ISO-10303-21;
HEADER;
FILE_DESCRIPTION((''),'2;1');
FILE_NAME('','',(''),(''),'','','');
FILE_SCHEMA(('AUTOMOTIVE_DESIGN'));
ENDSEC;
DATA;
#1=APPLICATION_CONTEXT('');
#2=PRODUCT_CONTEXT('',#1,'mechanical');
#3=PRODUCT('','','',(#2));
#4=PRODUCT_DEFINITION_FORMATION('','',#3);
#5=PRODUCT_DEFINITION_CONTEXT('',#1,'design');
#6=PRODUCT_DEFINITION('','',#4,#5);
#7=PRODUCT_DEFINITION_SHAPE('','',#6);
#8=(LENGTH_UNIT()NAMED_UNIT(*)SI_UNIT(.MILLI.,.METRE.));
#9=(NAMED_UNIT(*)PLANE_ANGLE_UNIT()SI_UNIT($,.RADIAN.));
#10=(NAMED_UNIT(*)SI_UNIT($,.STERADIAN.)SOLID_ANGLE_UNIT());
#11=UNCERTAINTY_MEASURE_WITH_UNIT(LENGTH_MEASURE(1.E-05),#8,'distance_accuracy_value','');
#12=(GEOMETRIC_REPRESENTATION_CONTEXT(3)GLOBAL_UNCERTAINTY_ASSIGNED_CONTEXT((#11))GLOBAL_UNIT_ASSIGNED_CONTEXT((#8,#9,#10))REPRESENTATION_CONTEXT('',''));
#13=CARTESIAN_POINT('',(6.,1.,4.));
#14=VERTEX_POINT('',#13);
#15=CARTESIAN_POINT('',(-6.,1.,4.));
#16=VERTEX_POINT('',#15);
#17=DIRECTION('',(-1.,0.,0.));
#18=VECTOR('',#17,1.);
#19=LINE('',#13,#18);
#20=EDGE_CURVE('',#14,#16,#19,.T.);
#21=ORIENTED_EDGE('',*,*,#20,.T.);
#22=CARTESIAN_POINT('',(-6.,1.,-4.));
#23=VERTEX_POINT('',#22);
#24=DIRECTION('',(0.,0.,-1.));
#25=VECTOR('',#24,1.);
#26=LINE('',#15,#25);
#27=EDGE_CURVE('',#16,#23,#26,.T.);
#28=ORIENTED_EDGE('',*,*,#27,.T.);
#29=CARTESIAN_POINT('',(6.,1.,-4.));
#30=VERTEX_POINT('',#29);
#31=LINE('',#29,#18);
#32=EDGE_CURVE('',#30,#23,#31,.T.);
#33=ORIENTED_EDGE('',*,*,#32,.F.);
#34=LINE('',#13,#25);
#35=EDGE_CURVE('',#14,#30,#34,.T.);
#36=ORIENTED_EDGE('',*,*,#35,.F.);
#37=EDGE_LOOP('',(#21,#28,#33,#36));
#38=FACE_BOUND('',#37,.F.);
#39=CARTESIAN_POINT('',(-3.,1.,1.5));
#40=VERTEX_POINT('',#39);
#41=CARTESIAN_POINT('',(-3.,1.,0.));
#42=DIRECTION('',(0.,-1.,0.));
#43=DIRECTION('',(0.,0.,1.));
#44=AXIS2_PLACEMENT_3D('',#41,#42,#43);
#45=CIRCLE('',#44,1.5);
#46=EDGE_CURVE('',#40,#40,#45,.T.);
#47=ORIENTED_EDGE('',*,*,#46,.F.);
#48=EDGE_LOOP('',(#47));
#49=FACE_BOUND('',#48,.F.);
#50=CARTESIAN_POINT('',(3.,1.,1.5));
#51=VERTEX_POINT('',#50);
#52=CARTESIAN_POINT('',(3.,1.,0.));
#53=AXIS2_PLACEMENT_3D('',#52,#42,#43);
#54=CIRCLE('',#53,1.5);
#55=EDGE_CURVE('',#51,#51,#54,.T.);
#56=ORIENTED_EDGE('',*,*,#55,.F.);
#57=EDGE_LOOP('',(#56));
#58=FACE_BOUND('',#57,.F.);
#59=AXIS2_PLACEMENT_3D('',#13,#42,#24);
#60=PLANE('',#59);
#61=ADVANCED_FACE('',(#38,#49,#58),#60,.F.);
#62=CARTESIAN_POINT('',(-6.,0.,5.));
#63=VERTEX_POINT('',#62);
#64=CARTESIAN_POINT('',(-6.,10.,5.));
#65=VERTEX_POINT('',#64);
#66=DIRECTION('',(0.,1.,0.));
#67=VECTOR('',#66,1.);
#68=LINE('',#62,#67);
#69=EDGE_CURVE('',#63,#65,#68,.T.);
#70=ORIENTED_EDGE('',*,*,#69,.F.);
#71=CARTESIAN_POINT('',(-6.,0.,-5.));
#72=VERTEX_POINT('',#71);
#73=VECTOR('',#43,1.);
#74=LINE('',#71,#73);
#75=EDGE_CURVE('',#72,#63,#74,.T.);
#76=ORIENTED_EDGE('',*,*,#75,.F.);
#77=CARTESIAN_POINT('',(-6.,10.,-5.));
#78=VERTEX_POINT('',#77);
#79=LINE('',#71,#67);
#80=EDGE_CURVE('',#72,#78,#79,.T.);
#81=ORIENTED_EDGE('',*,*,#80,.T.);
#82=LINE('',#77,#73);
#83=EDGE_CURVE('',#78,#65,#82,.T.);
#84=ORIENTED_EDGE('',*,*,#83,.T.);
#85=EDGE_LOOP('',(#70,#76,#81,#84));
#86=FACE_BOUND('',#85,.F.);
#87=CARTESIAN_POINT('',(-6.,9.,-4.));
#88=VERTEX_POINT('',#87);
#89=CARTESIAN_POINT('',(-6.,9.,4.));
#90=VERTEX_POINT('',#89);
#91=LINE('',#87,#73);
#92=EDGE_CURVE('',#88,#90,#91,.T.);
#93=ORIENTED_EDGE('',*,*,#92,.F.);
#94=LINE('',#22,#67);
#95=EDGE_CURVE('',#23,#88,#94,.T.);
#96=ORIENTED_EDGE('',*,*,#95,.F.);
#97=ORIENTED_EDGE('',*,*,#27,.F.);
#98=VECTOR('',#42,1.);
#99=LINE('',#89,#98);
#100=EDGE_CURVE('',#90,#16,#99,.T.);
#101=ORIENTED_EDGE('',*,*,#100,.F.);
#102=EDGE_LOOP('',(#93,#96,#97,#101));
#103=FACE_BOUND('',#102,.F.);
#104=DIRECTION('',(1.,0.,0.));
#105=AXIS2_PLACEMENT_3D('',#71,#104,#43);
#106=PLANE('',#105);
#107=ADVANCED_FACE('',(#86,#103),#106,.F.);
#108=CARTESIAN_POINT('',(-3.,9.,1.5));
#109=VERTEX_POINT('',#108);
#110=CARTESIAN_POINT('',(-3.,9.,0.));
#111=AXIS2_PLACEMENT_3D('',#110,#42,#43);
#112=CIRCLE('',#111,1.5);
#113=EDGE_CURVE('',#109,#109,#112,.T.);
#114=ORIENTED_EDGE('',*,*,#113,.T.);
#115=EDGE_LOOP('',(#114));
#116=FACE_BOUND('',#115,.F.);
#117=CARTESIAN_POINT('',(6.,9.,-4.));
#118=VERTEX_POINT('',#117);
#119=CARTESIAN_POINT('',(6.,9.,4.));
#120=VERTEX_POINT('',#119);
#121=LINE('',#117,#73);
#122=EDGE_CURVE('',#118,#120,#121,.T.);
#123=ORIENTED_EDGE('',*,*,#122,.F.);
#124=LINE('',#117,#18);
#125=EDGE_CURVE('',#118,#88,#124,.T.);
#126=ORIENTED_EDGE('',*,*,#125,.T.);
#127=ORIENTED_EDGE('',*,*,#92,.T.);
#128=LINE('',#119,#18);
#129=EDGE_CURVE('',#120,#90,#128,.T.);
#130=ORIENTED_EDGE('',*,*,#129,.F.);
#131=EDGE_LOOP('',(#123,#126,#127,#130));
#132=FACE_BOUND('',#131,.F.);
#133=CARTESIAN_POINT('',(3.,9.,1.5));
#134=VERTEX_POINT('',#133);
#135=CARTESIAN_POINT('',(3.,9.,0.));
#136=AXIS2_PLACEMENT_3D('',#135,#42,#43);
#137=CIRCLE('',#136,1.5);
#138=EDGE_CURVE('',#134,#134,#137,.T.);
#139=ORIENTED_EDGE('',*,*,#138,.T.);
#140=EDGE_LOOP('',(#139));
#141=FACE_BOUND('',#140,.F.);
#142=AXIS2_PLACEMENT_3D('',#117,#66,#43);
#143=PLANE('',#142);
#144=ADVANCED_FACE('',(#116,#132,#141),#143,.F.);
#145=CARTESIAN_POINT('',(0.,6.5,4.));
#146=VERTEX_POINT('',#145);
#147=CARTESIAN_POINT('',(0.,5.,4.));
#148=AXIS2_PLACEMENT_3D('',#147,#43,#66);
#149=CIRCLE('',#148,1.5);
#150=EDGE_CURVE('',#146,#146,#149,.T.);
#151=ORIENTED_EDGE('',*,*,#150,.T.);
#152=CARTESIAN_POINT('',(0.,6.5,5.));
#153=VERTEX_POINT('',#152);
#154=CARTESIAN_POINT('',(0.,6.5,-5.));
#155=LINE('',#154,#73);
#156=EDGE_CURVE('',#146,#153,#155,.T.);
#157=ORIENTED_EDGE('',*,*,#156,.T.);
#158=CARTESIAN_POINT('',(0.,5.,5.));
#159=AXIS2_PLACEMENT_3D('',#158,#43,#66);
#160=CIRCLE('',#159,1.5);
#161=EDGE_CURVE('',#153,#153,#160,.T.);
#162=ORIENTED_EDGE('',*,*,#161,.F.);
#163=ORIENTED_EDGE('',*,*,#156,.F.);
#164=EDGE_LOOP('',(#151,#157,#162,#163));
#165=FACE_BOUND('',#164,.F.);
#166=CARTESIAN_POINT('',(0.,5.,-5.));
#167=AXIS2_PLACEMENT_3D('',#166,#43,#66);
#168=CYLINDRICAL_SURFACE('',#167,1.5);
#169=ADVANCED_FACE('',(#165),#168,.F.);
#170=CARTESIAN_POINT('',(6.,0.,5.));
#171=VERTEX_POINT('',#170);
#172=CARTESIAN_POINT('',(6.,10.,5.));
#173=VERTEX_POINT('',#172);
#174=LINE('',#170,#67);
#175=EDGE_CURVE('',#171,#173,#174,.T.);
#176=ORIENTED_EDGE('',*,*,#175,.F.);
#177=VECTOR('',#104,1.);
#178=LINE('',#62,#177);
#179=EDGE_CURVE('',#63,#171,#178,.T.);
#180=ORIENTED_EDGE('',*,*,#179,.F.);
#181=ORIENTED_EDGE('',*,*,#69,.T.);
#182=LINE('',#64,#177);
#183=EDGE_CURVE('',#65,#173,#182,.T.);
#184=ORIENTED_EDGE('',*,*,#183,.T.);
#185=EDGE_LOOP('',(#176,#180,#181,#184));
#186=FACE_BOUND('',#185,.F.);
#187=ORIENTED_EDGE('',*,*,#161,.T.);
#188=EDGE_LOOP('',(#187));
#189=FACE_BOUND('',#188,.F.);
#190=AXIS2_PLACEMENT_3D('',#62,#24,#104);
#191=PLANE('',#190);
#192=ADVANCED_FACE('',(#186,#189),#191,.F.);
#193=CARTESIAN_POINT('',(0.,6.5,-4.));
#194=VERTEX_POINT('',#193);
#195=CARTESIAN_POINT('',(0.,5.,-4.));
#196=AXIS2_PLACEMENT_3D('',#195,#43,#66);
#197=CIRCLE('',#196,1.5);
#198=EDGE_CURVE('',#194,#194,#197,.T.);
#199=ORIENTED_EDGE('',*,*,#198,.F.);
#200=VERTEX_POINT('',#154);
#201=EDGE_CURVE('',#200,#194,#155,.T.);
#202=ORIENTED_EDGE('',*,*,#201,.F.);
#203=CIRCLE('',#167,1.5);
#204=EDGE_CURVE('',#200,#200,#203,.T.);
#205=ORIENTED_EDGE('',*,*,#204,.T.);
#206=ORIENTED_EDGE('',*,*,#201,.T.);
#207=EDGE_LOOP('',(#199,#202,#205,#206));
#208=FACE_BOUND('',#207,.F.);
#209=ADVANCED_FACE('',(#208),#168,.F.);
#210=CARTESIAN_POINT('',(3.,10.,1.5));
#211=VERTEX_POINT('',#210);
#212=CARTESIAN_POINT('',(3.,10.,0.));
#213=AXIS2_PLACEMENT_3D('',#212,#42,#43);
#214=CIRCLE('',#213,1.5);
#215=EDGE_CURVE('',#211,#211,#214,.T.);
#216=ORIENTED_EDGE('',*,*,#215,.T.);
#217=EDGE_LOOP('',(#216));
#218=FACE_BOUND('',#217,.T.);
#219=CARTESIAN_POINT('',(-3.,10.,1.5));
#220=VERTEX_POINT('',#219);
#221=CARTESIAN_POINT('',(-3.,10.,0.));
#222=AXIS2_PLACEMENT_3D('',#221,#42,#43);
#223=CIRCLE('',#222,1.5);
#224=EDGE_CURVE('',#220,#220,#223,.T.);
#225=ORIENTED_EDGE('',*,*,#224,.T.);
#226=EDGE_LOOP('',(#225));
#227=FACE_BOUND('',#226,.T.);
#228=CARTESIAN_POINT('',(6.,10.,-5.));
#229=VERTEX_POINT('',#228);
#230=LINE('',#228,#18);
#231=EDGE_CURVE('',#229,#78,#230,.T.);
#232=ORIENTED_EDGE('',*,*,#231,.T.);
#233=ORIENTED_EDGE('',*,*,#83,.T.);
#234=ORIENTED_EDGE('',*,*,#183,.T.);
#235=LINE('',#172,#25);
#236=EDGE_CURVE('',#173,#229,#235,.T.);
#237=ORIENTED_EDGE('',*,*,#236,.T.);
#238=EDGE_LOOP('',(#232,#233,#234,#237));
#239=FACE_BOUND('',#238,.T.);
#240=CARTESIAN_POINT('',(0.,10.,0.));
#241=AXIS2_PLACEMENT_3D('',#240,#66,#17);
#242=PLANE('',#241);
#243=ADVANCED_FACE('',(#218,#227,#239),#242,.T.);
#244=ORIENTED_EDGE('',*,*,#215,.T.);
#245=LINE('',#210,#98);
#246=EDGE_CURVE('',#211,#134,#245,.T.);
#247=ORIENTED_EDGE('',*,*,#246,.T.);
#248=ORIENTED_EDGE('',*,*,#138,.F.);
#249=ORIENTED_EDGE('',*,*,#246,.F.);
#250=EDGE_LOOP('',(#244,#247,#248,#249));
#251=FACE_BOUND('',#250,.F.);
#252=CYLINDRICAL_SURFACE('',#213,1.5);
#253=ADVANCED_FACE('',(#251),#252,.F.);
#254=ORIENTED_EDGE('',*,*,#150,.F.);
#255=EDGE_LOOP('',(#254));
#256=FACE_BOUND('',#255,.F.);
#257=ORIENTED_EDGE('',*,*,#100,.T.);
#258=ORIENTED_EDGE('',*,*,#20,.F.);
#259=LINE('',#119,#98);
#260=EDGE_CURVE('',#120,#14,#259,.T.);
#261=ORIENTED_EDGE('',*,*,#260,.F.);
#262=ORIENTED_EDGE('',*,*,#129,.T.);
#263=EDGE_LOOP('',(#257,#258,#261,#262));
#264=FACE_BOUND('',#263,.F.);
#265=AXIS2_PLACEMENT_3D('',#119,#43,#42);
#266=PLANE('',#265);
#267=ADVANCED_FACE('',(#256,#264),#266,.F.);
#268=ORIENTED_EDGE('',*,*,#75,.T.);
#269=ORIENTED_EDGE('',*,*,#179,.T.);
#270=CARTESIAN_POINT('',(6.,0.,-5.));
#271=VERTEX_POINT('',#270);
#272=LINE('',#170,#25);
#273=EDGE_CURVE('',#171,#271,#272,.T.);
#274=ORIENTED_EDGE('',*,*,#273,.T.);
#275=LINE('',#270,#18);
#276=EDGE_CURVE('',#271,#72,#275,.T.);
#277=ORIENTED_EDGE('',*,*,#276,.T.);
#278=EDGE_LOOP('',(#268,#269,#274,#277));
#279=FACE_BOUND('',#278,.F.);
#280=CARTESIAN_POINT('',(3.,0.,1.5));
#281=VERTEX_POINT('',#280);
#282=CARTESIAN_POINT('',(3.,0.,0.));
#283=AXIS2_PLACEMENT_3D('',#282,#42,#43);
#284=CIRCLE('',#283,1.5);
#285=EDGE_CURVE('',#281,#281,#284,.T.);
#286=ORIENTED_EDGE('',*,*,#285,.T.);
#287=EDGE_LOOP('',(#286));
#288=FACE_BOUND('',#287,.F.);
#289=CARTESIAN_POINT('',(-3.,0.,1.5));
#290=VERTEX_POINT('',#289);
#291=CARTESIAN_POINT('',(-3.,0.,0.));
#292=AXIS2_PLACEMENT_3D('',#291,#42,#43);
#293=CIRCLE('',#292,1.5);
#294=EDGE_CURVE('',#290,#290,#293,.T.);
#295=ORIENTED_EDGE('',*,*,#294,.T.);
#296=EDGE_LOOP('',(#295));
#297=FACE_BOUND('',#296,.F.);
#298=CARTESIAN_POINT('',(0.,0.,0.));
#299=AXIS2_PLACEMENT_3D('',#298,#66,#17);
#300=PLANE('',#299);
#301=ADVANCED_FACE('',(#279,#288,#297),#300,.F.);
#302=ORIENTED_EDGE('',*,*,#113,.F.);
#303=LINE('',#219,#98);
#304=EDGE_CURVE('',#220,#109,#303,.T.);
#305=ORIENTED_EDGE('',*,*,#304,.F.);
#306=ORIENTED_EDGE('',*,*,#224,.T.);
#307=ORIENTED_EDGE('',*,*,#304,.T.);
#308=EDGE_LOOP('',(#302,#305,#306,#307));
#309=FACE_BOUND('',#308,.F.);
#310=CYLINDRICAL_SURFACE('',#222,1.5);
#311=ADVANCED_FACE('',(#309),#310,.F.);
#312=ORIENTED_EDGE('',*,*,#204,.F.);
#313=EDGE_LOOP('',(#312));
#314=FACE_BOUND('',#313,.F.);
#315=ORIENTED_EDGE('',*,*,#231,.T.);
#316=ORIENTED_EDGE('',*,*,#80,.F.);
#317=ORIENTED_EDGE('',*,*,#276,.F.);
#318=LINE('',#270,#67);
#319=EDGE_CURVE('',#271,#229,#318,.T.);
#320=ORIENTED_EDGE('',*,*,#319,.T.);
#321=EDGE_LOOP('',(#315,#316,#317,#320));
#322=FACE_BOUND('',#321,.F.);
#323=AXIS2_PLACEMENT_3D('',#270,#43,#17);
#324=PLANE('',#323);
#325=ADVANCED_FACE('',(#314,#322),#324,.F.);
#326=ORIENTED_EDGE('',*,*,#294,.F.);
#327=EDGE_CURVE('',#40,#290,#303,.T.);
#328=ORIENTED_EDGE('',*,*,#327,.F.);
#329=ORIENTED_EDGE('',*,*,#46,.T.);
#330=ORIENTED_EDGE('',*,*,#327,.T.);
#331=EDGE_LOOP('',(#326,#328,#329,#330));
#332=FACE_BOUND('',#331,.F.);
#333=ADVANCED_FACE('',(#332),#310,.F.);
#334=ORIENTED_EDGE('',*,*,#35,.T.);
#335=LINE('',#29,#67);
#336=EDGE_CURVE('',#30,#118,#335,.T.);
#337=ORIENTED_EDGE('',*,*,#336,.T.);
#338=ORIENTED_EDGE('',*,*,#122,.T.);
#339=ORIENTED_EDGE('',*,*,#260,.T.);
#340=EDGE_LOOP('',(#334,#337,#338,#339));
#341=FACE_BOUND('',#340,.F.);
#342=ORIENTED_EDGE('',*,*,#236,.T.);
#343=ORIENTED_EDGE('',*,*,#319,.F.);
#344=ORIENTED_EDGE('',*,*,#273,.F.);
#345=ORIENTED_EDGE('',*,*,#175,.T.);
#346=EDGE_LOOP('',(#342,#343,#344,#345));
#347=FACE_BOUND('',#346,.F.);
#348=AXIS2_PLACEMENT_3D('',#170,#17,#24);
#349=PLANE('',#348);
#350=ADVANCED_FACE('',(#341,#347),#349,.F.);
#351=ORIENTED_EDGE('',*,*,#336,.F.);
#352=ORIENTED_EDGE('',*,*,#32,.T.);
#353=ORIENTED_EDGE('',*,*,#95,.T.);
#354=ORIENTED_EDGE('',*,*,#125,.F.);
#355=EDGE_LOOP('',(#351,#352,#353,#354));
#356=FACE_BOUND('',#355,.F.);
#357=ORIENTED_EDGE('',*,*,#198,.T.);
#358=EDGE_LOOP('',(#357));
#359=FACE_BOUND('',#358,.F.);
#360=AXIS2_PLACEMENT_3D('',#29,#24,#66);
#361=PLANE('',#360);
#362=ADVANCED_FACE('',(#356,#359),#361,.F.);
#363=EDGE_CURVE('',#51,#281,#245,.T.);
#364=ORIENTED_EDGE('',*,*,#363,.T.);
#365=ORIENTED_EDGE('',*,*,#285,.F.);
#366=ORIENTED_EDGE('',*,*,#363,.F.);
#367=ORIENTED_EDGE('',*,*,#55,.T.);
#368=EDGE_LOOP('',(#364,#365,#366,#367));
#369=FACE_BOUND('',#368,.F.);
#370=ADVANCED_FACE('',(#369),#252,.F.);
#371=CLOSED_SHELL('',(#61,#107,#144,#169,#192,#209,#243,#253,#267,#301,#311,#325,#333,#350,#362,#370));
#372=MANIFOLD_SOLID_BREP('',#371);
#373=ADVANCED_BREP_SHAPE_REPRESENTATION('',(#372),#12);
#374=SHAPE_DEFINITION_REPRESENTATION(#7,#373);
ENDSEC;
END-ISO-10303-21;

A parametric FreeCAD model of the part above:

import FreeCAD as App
import Part
import Sketcher
from FreeCAD import Vector

doc = App.newDocument("Part")
body = doc.addObject("PartDesign::Body", "Body")

# Sketch on XZ plane
sketch1 = body.newObject("Sketcher::SketchObject", "Sketch")
sketch1.AttachmentSupport = (doc.getObject("XZ_Plane"), [""])
sketch1.MapMode = "FlatFace"
sketch1.addGeometry(Part.LineSegment(Vector(6, 5, 0), Vector(6, -5, 0)), False)
sketch1.addGeometry(Part.LineSegment(Vector(6, -5, 0), Vector(-6, -5, 0)), False)
sketch1.addGeometry(Part.LineSegment(Vector(-6, -5, 0), Vector(-6, 5, 0)), False)
sketch1.addGeometry(Part.LineSegment(Vector(-6, 5, 0), Vector(6, 5, 0)), False)
sketch1.addConstraint(Sketcher.Constraint("Coincident", 0, 2, 1, 1))
sketch1.addConstraint(Sketcher.Constraint("Coincident", 1, 2, 2, 1))
sketch1.addConstraint(Sketcher.Constraint("Coincident", 2, 2, 3, 1))
sketch1.addConstraint(Sketcher.Constraint("Coincident", 3, 2, 0, 1))
sketch1.addConstraint(Sketcher.Constraint("Vertical", 0))
sketch1.addConstraint(Sketcher.Constraint("Horizontal", 1))
sketch1.addConstraint(Sketcher.Constraint("Vertical", 2))
sketch1.addConstraint(Sketcher.Constraint("Horizontal", 3))
sketch1.addConstraint(Sketcher.Constraint("Symmetric", 0, 2, 2, 2, -1, 1))
sketch1.addConstraint(Sketcher.Constraint("DistanceX", 1, 2, 1, 1, 12.0))
sketch1.addConstraint(Sketcher.Constraint("DistanceY", 0, 2, 0, 1, 10.0))
pad1 = body.newObject("PartDesign::Pad", "Pad")
pad1.Profile = sketch1
pad1.Length = 10
pad1.Reversed = True

# Sketch on XZ plane
sketch2 = body.newObject("Sketcher::SketchObject", "Sketch001")
sketch2.AttachmentSupport = (doc.getObject("XZ_Plane"), [""])
sketch2.MapMode = "FlatFace"
sketch2.AttachmentOffset = App.Placement(Vector(0, 0, -10), App.Rotation())
sketch2.addGeometry(Part.Circle(Vector(3, 0, 0), Vector(0, 0, 1), 1.5), False)
sketch2.addGeometry(Part.Circle(Vector(-3, 0, 0), Vector(0, 0, 1), 1.5), False)
sketch2.addConstraint(Sketcher.Constraint("Equal", 0, 1))
sketch2.addConstraint(Sketcher.Constraint("Symmetric", 0, 3, 1, 3, -1, 1))
sketch2.addConstraint(Sketcher.Constraint("PointOnObject", 0, 3, -1))
sketch2.addConstraint(Sketcher.Constraint("Diameter", 0, 3.0))
sketch2.addConstraint(Sketcher.Constraint("DistanceX", -1, 1, 0, 3, 3.0))
doc.recompute()
hole = body.newObject("PartDesign::Hole", "Hole")
hole.Profile = sketch2
hole.ThreadType = "None"
hole.Diameter = 3
hole.DepthType = "ThroughAll"
hole.Reversed = True

# Sketch on XY plane
sketch3 = body.newObject("Sketcher::SketchObject", "Sketch002")
sketch3.AttachmentSupport = (doc.getObject("XY_Plane"), [""])
sketch3.MapMode = "FlatFace"
sketch3.AttachmentOffset = App.Placement(Vector(0, 0, -5), App.Rotation())
sketch3.addGeometry(Part.Circle(Vector(0, 5, 0), Vector(0, 0, 1), 1.5), False)
sketch3.addConstraint(Sketcher.Constraint("PointOnObject", 0, 3, -2))
sketch3.addConstraint(Sketcher.Constraint("Diameter", 0, 3.0))
sketch3.addConstraint(Sketcher.Constraint("DistanceY", -1, 1, 0, 3, 5.0))
doc.recompute()
hole2 = body.newObject("PartDesign::Hole", "Hole001")
hole2.Profile = sketch3
hole2.ThreadType = "None"
hole2.Diameter = 3
hole2.DepthType = "ThroughAll"
hole2.Reversed = True

# Sketch on YZ plane
sketch4 = body.newObject("Sketcher::SketchObject", "Sketch003")
sketch4.AttachmentSupport = (doc.getObject("YZ_Plane"), [""])
sketch4.MapMode = "FlatFace"
sketch4.AttachmentOffset = App.Placement(Vector(0, 0, 6), App.Rotation())
sketch4.addGeometry(Part.LineSegment(Vector(9, 4, 0), Vector(1, 4, 0)), False)
sketch4.addGeometry(Part.LineSegment(Vector(1, 4, 0), Vector(1, -4, 0)), False)
sketch4.addGeometry(Part.LineSegment(Vector(1, -4, 0), Vector(9, -4, 0)), False)
sketch4.addGeometry(Part.LineSegment(Vector(9, -4, 0), Vector(9, 4, 0)), False)
sketch4.addConstraint(Sketcher.Constraint("Coincident", 0, 2, 1, 1))
sketch4.addConstraint(Sketcher.Constraint("Coincident", 1, 2, 2, 1))
sketch4.addConstraint(Sketcher.Constraint("Coincident", 2, 2, 3, 1))
sketch4.addConstraint(Sketcher.Constraint("Coincident", 3, 2, 0, 1))
sketch4.addConstraint(Sketcher.Constraint("Horizontal", 0))
sketch4.addConstraint(Sketcher.Constraint("Vertical", 1))
sketch4.addConstraint(Sketcher.Constraint("Horizontal", 2))
sketch4.addConstraint(Sketcher.Constraint("Vertical", 3))
sketch4.addConstraint(Sketcher.Constraint("Equal", 2, 1))
sketch4.addConstraint(Sketcher.Constraint("DistanceX", 0, 2, 0, 1, 8.0))
sketch4.addConstraint(Sketcher.Constraint("DistanceX", -1, 1, 0, 2, 1.0))
sketch4.addConstraint(Sketcher.Constraint("DistanceY", -1, 1, 0, 2, 4.0))
pocket1 = body.newObject("PartDesign::Pocket", "Pocket")
pocket1.Profile = sketch4
pocket1.Length = 12

doc.recompute()
